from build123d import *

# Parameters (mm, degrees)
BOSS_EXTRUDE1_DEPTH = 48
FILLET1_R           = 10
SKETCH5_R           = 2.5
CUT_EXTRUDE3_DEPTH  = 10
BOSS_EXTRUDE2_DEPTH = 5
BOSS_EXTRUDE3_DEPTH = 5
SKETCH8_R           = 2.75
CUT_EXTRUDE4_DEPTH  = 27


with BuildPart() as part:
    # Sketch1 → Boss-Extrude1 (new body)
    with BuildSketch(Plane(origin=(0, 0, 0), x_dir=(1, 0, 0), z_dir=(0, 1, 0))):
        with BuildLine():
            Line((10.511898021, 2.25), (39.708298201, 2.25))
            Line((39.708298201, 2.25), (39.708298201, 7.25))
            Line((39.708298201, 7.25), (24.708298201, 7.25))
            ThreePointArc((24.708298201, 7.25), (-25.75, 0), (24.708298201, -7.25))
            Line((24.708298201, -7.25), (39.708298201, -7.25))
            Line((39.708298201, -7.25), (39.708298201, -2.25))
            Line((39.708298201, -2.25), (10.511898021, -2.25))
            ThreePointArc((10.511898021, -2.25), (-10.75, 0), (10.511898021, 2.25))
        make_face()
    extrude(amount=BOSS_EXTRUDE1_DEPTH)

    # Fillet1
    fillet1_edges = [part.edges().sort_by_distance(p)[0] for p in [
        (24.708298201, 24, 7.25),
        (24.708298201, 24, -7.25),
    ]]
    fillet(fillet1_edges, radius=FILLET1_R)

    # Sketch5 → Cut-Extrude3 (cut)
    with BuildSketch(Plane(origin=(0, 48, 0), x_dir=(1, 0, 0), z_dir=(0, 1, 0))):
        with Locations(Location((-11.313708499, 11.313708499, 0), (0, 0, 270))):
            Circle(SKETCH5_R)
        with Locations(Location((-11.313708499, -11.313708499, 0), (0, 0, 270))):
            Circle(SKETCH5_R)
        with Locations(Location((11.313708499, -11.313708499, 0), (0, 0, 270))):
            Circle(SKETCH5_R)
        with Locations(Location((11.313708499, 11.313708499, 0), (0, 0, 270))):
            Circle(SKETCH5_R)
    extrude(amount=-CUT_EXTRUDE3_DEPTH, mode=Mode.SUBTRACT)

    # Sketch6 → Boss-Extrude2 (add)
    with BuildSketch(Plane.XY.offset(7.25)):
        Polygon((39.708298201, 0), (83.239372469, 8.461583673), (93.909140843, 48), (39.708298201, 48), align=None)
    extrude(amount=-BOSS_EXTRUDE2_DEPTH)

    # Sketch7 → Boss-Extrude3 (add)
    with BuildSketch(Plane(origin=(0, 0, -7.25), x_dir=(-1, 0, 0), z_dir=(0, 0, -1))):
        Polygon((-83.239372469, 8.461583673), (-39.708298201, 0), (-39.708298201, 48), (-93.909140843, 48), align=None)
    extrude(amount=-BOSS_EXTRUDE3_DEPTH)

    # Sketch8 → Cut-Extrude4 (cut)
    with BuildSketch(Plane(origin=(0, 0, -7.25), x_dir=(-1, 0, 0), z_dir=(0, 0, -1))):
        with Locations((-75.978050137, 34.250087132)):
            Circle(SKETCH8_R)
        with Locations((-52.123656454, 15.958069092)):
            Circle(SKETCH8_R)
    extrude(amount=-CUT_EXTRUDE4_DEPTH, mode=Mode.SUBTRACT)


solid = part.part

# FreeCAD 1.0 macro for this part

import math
import FreeCAD as App
import Part
import Sketcher
Q = App.Units.Quantity


def edges_at(feature, points):
    """Names of the edges that pass closest to the given points."""
    edges = feature.Shape.Edges
    near = lambda p: min(range(len(edges)), key=lambda i: edges[i].distToShape(Part.Vertex(*p))[0])
    return sorted({f"Edge{near(p) + 1}" for p in points})

doc = App.newDocument("Part")
body = doc.addObject("PartDesign::Body", "Body")

# Sketch on XZ plane
sketch1 = body.newObject("Sketcher::SketchObject", "Sketch")
sketch1.AttachmentSupport = (doc.getObject("XZ_Plane"), [""])
sketch1.MapMode = "FlatFace"
sketch1.addGeometry([
    Part.LineSegment(App.Vector(10.5, -2.2, 0), App.Vector(39.7, -2.2, 0)),  # 0
    Part.LineSegment(App.Vector(39.7, -2.2, 0), App.Vector(39.7, -7.2, 0)),  # 1
    Part.LineSegment(App.Vector(39.7, -7.2, 0), App.Vector(24.7, -7.2, 0)),  # 2
    Part.ArcOfCircle(Part.Circle(App.Vector(0, 0, 0), App.Vector(0, 0, 1), 25.8), math.radians(16), math.radians(344)),  # 3
    Part.LineSegment(App.Vector(24.7, 7.2, 0), App.Vector(39.7, 7.2, 0)),  # 4
    Part.LineSegment(App.Vector(39.7, 7.2, 0), App.Vector(39.7, 2.2, 0)),  # 5
    Part.LineSegment(App.Vector(39.7, 2.2, 0), App.Vector(10.5, 2.2, 0)),  # 6
    Part.ArcOfCircle(Part.Circle(App.Vector(0, 0, 0), App.Vector(0, 0, 1), 10.8), math.radians(12), math.radians(348)),  # 7
], False)
sketch1.addConstraint([
    Sketcher.Constraint("Coincident", 0, 2, 1, 1),
    Sketcher.Constraint("Coincident", 1, 2, 2, 1),
    Sketcher.Constraint("Coincident", 2, 2, 3, 2),
    Sketcher.Constraint("Coincident", 3, 1, 4, 1),
    Sketcher.Constraint("Coincident", 4, 2, 5, 1),
    Sketcher.Constraint("Coincident", 5, 2, 6, 1),
    Sketcher.Constraint("Coincident", 6, 2, 7, 1),
    Sketcher.Constraint("Coincident", 7, 2, 0, 1),
    Sketcher.Constraint("Horizontal", 0),
    Sketcher.Constraint("Vertical", 1),
    Sketcher.Constraint("Horizontal", 2),
    Sketcher.Constraint("Horizontal", 4),
    Sketcher.Constraint("Vertical", 5),
    Sketcher.Constraint("Horizontal", 6),
    Sketcher.Constraint("Coincident", 3, 3, -1, 1),
    Sketcher.Constraint("Coincident", 7, 3, -1, 1),
    Sketcher.Constraint("Symmetric", 1, 2, 4, 2, -1),
    Sketcher.Constraint("Vertical", 6, 2, 7, 2),
    Sketcher.Constraint("DistanceX", 2, 2, 2, 1, 15.0),
    Sketcher.Constraint("DistanceY", 1, 2, 1, 1, 5.0),
    Sketcher.Constraint("Radius", 3, 25.75),
    Sketcher.Constraint("Radius", 7, 10.75),
    Sketcher.Constraint("DistanceY", 2, 2, 3, 1, 14.5),
])
pad1 = body.newObject("PartDesign::Pad", "Pad")
pad1.Profile = sketch1
pad1.Length = 48
pad1.Reversed = True
doc.recompute()

fillet = body.newObject("PartDesign::Fillet", "Fillet")
fillet.Base = (pad1, edges_at(pad1, [(24.708, 24, 7.25), (24.708, 24, -7.25)]))
fillet.Radius = 10

# Sketch on XZ plane
sketch2 = body.newObject("Sketcher::SketchObject", "Sketch001")
sketch2.AttachmentSupport = (doc.getObject("XZ_Plane"), [""])
sketch2.MapMode = "FlatFace"
sketch2.AttachmentOffset = App.Placement(App.Vector(0, 0, -48), App.Rotation())
sketch2.addGeometry([
    Part.Circle(App.Vector(-11.3, -11.3, 0), App.Vector(0, 0, 1), 2.5),
    Part.Circle(App.Vector(-11.3, 11.3, 0), App.Vector(0, 0, 1), 2.5),
    Part.Circle(App.Vector(11.3, 11.3, 0), App.Vector(0, 0, 1), 2.5),
    Part.Circle(App.Vector(11.3, -11.3, 0), App.Vector(0, 0, 1), 2.5),
], False)
sketch2.addConstraint([
    Sketcher.Constraint("Equal", 0, 1),
    Sketcher.Constraint("Equal", 1, 2),
    Sketcher.Constraint("Equal", 2, 3),
    Sketcher.Constraint("Symmetric", 0, 3, 2, 3, -1, 1),
    Sketcher.Constraint("Symmetric", 1, 3, 3, 3, -1, 1),
    Sketcher.Constraint("Symmetric", 1, 3, 2, 3, -2),
    Sketcher.Constraint("Diameter", 0, 5.0),
    Sketcher.Constraint("DistanceX", 0, 3, -1, 1, 11.313708),
    Sketcher.Constraint("DistanceY", 0, 3, -1, 1, 11.313708),
])
pocket1 = body.newObject("PartDesign::Pocket", "Pocket")
pocket1.Profile = sketch2
pocket1.Length = 10
pocket1.Reversed = True

# Sketch on XY plane
sketch3 = body.newObject("Sketcher::SketchObject", "Sketch002")
sketch3.AttachmentSupport = (doc.getObject("XY_Plane"), [""])
sketch3.MapMode = "FlatFace"
sketch3.AttachmentOffset = App.Placement(App.Vector(0, 0, 7.25), App.Rotation())
sketch3.addGeometry([
    Part.LineSegment(App.Vector(40, 0, 0), App.Vector(83, 8, 0)),
    Part.LineSegment(App.Vector(83, 8, 0), App.Vector(94, 48, 0)),
    Part.LineSegment(App.Vector(94, 48, 0), App.Vector(40, 48, 0)),
    Part.LineSegment(App.Vector(40, 48, 0), App.Vector(40, 0, 0)),
], False)
sketch3.addConstraint([
    Sketcher.Constraint("Coincident", 0, 2, 1, 1),
    Sketcher.Constraint("Coincident", 1, 2, 2, 1),
    Sketcher.Constraint("Coincident", 2, 2, 3, 1),
    Sketcher.Constraint("Coincident", 3, 2, 0, 1),
    Sketcher.Constraint("Horizontal", 2),
    Sketcher.Constraint("Vertical", 3),
    Sketcher.Constraint("PointOnObject", 3, 2, -1),
    Sketcher.Constraint("DistanceY", 3, 2, 3, 1, 48.0),
    Sketcher.Constraint("Angle", 0, Q("11 deg")),
    Sketcher.Constraint("DistanceX", -1, 1, 2, 2, 39.708298),
    Sketcher.Constraint("Distance", 1, 40.952782),
    Sketcher.Constraint("DistanceX", 2, 2, 2, 1, 54.200843),
])
pad2 = body.newObject("PartDesign::Pad", "Pad001")
pad2.Profile = sketch3
pad2.Length = 5
pad2.Reversed = True

# Sketch on XY plane
sketch4 = body.newObject("Sketcher::SketchObject", "Sketch003")
sketch4.AttachmentSupport = (doc.getObject("XY_Plane"), [""])
sketch4.MapMode = "FlatFace"
sketch4.AttachmentOffset = App.Placement(App.Vector(0, 0, -7.25), App.Rotation())
sketch4.addGeometry([
    Part.LineSegment(App.Vector(83, 8, 0), App.Vector(40, 0, 0)),
    Part.LineSegment(App.Vector(40, 0, 0), App.Vector(40, 48, 0)),
    Part.LineSegment(App.Vector(40, 48, 0), App.Vector(94, 48, 0)),
    Part.LineSegment(App.Vector(94, 48, 0), App.Vector(83, 8, 0)),
], False)
sketch4.addConstraint([
    Sketcher.Constraint("Coincident", 0, 2, 1, 1),
    Sketcher.Constraint("Coincident", 1, 2, 2, 1),
    Sketcher.Constraint("Coincident", 2, 2, 3, 1),
    Sketcher.Constraint("Coincident", 3, 2, 0, 1),
    Sketcher.Constraint("Vertical", 1),
    Sketcher.Constraint("Horizontal", 2),
    Sketcher.Constraint("PointOnObject", 0, 2, -1),
    Sketcher.Constraint("DistanceY", 1, 1, 1, 2, 48.0),
    Sketcher.Constraint("Angle", 0, Q("-169 deg")),
    Sketcher.Constraint("DistanceX", -1, 1, 0, 2, 39.708298),
    Sketcher.Constraint("Distance", 3, 40.952782),
    Sketcher.Constraint("DistanceX", 2, 1, 2, 2, 54.200843),
])
pad3 = body.newObject("PartDesign::Pad", "Pad002")
pad3.Profile = sketch4
pad3.Length = 5

# Sketch on XY plane
sketch5 = body.newObject("Sketcher::SketchObject", "Sketch004")
sketch5.AttachmentSupport = (doc.getObject("XY_Plane"), [""])
sketch5.MapMode = "FlatFace"
sketch5.AttachmentOffset = App.Placement(App.Vector(0, 0, -7.25), App.Rotation())
sketch5.addGeometry([
    Part.Circle(App.Vector(76, 34.3, 0), App.Vector(0, 0, 1), 2.8),
    Part.Circle(App.Vector(52.1, 16, 0), App.Vector(0, 0, 1), 2.8),
], False)
sketch5.addConstraint([
    Sketcher.Constraint("Equal", 0, 1),
    Sketcher.Constraint("Diameter", 0, 5.5),
    Sketcher.Constraint("DistanceX", -1, 1, 0, 3, 75.97805),
    Sketcher.Constraint("DistanceY", -1, 1, 1, 3, 15.958069),
    Sketcher.Constraint("DistanceY", 1, 3, 0, 3, 18.292018),
    Sketcher.Constraint("DistanceX", -1, 1, 1, 3, 52.123656),
])
pocket2 = body.newObject("PartDesign::Pocket", "Pocket001")
pocket2.Profile = sketch5
pocket2.Length = 27
pocket2.Reversed = True

doc.recompute()
